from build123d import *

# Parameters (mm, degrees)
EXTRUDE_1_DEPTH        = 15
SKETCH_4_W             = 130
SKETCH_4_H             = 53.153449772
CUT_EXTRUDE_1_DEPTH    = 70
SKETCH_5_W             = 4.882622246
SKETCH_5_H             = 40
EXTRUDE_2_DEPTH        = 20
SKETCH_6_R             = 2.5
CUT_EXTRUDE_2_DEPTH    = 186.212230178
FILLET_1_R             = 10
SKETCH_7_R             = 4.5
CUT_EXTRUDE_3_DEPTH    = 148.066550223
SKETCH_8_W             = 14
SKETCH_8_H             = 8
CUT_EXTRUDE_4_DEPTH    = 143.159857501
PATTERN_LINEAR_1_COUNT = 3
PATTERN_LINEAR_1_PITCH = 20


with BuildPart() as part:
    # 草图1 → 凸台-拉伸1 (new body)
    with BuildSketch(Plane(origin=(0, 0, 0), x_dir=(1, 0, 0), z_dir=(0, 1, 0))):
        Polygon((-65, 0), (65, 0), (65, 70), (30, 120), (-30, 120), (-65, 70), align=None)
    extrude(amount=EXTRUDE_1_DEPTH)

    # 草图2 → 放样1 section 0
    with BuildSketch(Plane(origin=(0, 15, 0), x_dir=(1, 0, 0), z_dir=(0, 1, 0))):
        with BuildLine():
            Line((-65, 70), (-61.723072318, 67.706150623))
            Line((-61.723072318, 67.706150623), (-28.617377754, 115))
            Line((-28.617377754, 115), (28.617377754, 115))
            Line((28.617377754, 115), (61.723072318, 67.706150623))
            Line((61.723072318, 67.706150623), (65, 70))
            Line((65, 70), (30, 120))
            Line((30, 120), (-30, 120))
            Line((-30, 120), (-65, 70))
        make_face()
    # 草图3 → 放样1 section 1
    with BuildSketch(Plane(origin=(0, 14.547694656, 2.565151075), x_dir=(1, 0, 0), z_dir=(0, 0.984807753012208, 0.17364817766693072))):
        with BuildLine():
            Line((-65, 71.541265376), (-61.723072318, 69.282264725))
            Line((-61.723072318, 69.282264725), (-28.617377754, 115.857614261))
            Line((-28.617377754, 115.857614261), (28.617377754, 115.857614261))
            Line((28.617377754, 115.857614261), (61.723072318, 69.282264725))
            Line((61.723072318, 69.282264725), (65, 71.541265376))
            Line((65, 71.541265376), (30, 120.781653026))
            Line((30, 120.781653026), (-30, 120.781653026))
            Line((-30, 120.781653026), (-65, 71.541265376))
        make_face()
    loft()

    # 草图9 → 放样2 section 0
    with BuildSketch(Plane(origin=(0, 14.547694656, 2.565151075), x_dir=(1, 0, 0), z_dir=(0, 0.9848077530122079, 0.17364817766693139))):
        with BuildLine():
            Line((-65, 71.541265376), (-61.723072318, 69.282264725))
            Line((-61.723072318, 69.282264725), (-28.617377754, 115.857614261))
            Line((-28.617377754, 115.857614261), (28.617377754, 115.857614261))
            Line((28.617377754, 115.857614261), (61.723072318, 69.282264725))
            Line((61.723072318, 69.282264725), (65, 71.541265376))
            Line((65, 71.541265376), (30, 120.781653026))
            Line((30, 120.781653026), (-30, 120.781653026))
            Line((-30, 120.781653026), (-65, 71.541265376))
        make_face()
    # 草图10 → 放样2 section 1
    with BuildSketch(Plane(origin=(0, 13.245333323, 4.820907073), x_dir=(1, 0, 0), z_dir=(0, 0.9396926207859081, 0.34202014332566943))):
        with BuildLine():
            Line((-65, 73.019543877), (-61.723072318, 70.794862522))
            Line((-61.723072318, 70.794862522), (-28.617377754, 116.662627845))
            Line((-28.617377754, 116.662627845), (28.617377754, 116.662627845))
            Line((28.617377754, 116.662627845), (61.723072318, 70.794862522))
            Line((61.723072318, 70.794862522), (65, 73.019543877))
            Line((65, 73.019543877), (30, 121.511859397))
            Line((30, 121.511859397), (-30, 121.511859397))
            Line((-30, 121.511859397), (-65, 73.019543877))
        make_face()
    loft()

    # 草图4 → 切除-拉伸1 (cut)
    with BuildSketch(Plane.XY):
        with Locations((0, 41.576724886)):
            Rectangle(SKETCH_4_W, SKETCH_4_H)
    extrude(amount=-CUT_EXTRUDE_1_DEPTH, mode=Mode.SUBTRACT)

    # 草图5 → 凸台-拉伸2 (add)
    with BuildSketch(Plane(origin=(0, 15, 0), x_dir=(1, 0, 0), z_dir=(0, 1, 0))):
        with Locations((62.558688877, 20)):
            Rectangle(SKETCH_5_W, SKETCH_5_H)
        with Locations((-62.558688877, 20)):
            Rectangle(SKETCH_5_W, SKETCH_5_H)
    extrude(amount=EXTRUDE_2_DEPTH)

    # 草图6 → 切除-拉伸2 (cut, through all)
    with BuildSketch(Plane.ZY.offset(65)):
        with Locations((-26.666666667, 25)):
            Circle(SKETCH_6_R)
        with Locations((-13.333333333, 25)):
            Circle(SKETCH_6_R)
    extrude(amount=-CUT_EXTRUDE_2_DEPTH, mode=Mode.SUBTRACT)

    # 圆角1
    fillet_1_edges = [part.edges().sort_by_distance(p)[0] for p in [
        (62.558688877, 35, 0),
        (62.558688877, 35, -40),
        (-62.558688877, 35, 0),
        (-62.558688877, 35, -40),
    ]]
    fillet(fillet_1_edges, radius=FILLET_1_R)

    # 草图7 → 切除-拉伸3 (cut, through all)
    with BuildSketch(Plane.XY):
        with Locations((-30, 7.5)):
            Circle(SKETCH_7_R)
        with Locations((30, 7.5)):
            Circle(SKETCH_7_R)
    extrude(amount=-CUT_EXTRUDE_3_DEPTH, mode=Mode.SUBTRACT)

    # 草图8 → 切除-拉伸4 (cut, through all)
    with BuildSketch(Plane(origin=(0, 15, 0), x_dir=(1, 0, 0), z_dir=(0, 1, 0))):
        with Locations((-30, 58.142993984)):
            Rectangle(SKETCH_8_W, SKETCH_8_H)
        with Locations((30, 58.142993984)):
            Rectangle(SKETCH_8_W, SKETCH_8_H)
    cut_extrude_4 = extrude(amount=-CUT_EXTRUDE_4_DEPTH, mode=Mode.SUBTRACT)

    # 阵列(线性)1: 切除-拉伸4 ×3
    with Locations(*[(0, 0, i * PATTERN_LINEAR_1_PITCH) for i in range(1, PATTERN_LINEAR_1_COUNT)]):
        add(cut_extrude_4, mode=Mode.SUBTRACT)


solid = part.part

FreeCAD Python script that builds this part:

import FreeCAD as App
import Part
import Sketcher

V = App.Vector
Q = App.Units.Quantity


def edges_at(feature, points):
    """Names of the edges that pass closest to the given points."""
    edges = feature.Shape.Edges
    near = lambda p: min(range(len(edges)), key=lambda i: edges[i].distToShape(Part.Vertex(*p))[0])
    return sorted({f"Edge{near(p) + 1}" for p in points})

doc = App.newDocument("Part")
body = doc.addObject("PartDesign::Body", "Body")

# Sketch on XZ plane
sketch1 = doc.addObject("Sketcher::SketchObject", "Sketch")
body.addObject(sketch1)
sketch1.AttachmentSupport = (doc.XZ_Plane, [""])
sketch1.MapMode = "FlatFace"
sketch1.addGeometry([
    Part.LineSegment(V(-65, 0, 0), V(65, 0, 0)),  # 0
    Part.LineSegment(V(65, 0, 0), V(65, -70, 0)),  # 1
    Part.LineSegment(V(65, -70, 0), V(30, -120, 0)),  # 2
    Part.LineSegment(V(30, -120, 0), V(-30, -120, 0)),  # 3
    Part.LineSegment(V(-30, -120, 0), V(-65, -70, 0)),  # 4
    Part.LineSegment(V(-65, -70, 0), V(-65, 0, 0)),  # 5
], False)
sketch1.addConstraint([
    Sketcher.Constraint("Coincident", 0, 2, 1, 1),
    Sketcher.Constraint("Coincident", 1, 2, 2, 1),
    Sketcher.Constraint("Coincident", 2, 2, 3, 1),
    Sketcher.Constraint("Coincident", 3, 2, 4, 1),
    Sketcher.Constraint("Coincident", 4, 2, 5, 1),
    Sketcher.Constraint("Coincident", 5, 2, 0, 1),
    Sketcher.Constraint("Horizontal", 0),
    Sketcher.Constraint("Vertical", 1),
    Sketcher.Constraint("Horizontal", 3),
    Sketcher.Constraint("Vertical", 5),
    Sketcher.Constraint("Symmetric", 0, 2, 5, 2, -1, 1),
    Sketcher.Constraint("Horizontal", 1, 2, 4, 2),
    Sketcher.Constraint("Equal", 2, 4),
    Sketcher.Constraint("DistanceX", 0, 1, 0, 2, Q("130 mm")),
    Sketcher.Constraint("DistanceX", 3, 2, 3, 1, Q("60 mm")),
    Sketcher.Constraint("DistanceY", 1, 2, 1, 1, Q("70 mm")),
    Sketcher.Constraint("DistanceY", 2, 2, -1, 1, Q("120 mm")),
])
pad1 = doc.addObject("PartDesign::Pad", "Pad")
body.addObject(pad1)
pad1.Profile = sketch1
pad1.Length = 15
pad1.Reversed = True

# Sketch on XZ plane
sketch2 = doc.addObject("Sketcher::SketchObject", "Sketch001")
body.addObject(sketch2)
sketch2.AttachmentSupport = (doc.XZ_Plane, [""])
sketch2.MapMode = "FlatFace"
sketch2.AttachmentOffset = App.Placement(V(0, 0, -15), App.Rotation())
sketch2.addGeometry([
    Part.LineSegment(V(-65, -70, 0), V(-61.723072, -67.706151, 0)),  # 0
    Part.LineSegment(V(-61.723072, -67.706151, 0), V(-28.617378, -115, 0)),  # 1
    Part.LineSegment(V(-28.617378, -115, 0), V(28.617378, -115, 0)),  # 2
    Part.LineSegment(V(28.617378, -115, 0), V(61.723072, -67.706151, 0)),  # 3
    Part.LineSegment(V(61.723072, -67.706151, 0), V(65, -70, 0)),  # 4
    Part.LineSegment(V(65, -70, 0), V(30, -120, 0)),  # 5
    Part.LineSegment(V(30, -120, 0), V(-30, -120, 0)),  # 6
    Part.LineSegment(V(-30, -120, 0), V(-65, -70, 0)),  # 7
], False)
sketch2.addConstraint([
    Sketcher.Constraint("Coincident", 0, 2, 1, 1),
    Sketcher.Constraint("Coincident", 1, 2, 2, 1),
    Sketcher.Constraint("Coincident", 2, 2, 3, 1),
    Sketcher.Constraint("Coincident", 3, 2, 4, 1),
    Sketcher.Constraint("Coincident", 4, 2, 5, 1),
    Sketcher.Constraint("Coincident", 5, 2, 6, 1),
    Sketcher.Constraint("Coincident", 6, 2, 7, 1),
    Sketcher.Constraint("Coincident", 7, 2, 0, 1),
    Sketcher.Constraint("Horizontal", 2),
    Sketcher.Constraint("Horizontal", 6),
    Sketcher.Constraint("Symmetric", 0, 2, 3, 2, -2),
    Sketcher.Constraint("Symmetric", 4, 2, 7, 2, -2),
    Sketcher.Constraint("Perpendicular", 0, 1),
    Sketcher.Constraint("Perpendicular", 3, 4),
    Sketcher.Constraint("Perpendicular", 4, 5),
    Sketcher.Constraint("Parallel", 1, 7),
    Sketcher.Constraint("DistanceX", 6, 2, 6, 1, Q("60 mm")),
    Sketcher.Constraint("Distance", 0, Q("4 mm")),
    Sketcher.Constraint("DistanceY", 1, 2, -1, 1, Q("115 mm")),
    Sketcher.Constraint("DistanceX", -1, 1, 4, 2, Q("65 mm")),
    Sketcher.Constraint("DistanceY", 4, 2, -1, 1, Q("70 mm")),
    Sketcher.Constraint("DistanceY", 5, 2, -1, 1, Q("120 mm")),
])

# Sketch on an angled plane
sketch3 = doc.addObject("Sketcher::SketchObject", "Sketch002")
body.addObject(sketch3)
sketch3.Placement = App.Placement(V(0, 14.547695, 2.565151), App.Rotation(V(1, 0, 0), V(0, 0.173648178, -0.984807753), V(0, 0.984807753, 0.173648178), "ZXY"))
sketch3.addGeometry([
    Part.LineSegment(V(-65, 71.541265, 0), V(-61.723072, 69.282265, 0)),  # 0
    Part.LineSegment(V(-61.723072, 69.282265, 0), V(-28.617378, 115.857614, 0)),  # 1
    Part.LineSegment(V(-28.617378, 115.857614, 0), V(28.617378, 115.857614, 0)),  # 2
    Part.LineSegment(V(28.617378, 115.857614, 0), V(61.723072, 69.282265, 0)),  # 3
    Part.LineSegment(V(61.723072, 69.282265, 0), V(65, 71.541265, 0)),  # 4
    Part.LineSegment(V(65, 71.541265, 0), V(30, 120.781653, 0)),  # 5
    Part.LineSegment(V(30, 120.781653, 0), V(-30, 120.781653, 0)),  # 6
    Part.LineSegment(V(-30, 120.781653, 0), V(-65, 71.541265, 0)),  # 7
], False)
sketch3.addConstraint([
    Sketcher.Constraint("Coincident", 0, 2, 1, 1),
    Sketcher.Constraint("Coincident", 1, 2, 2, 1),
    Sketcher.Constraint("Coincident", 2, 2, 3, 1),
    Sketcher.Constraint("Coincident", 3, 2, 4, 1),
    Sketcher.Constraint("Coincident", 4, 2, 5, 1),
    Sketcher.Constraint("Coincident", 5, 2, 6, 1),
    Sketcher.Constraint("Coincident", 6, 2, 7, 1),
    Sketcher.Constraint("Coincident", 7, 2, 0, 1),
    Sketcher.Constraint("Horizontal", 2),
    Sketcher.Constraint("Horizontal", 6),
    Sketcher.Constraint("Symmetric", 0, 2, 3, 2, -2),
    Sketcher.Constraint("Symmetric", 4, 2, 7, 2, -2),
    Sketcher.Constraint("Parallel", 3, 5),
    Sketcher.Constraint("Parallel", 1, 7),
    Sketcher.Constraint("Equal", 1, 3),
    Sketcher.Constraint("DistanceX", 6, 2, 6, 1, Q("60 mm")),
    Sketcher.Constraint("DistanceX", -1, 1, 4, 2, Q("65 mm")),
    Sketcher.Constraint("DistanceY", 3, 2, 4, 2, Q("2.259001 mm")),
    Sketcher.Constraint("Distance", 5, Q("60.41205 mm")),
    Sketcher.Constraint("DistanceX", 2, 1, 2, 2, Q("57.234756 mm")),
    Sketcher.Constraint("DistanceY", 0, 2, 1, 2, Q("46.57535 mm")),
    Sketcher.Constraint("DistanceY", -1, 1, 0, 2, Q("69.282265 mm")),
])

additiveloft = doc.addObject("PartDesign::AdditiveLoft", "AdditiveLoft")
body.addObject(additiveloft)
additiveloft.Profile = sketch2
additiveloft.Sections = [sketch3]

# Sketch on an angled plane
sketch4 = doc.addObject("Sketcher::SketchObject", "Sketch003")
body.addObject(sketch4)
sketch4.Placement = App.Placement(V(0, 14.547695, 2.565151), App.Rotation(V(1, 0, 0), V(0, 0.173648178, -0.984807753), V(0, 0.984807753, 0.173648178), "ZXY"))
sketch4.addGeometry([
    Part.LineSegment(V(-65, 71.541265, 0), V(-61.723072, 69.282265, 0)),  # 0
    Part.LineSegment(V(-61.723072, 69.282265, 0), V(-28.617378, 115.857614, 0)),  # 1
    Part.LineSegment(V(-28.617378, 115.857614, 0), V(28.617378, 115.857614, 0)),  # 2
    Part.LineSegment(V(28.617378, 115.857614, 0), V(61.723072, 69.282265, 0)),  # 3
    Part.LineSegment(V(61.723072, 69.282265, 0), V(65, 71.541265, 0)),  # 4
    Part.LineSegment(V(65, 71.541265, 0), V(30, 120.781653, 0)),  # 5
    Part.LineSegment(V(30, 120.781653, 0), V(-30, 120.781653, 0)),  # 6
    Part.LineSegment(V(-30, 120.781653, 0), V(-65, 71.541265, 0)),  # 7
], False)
sketch4.addConstraint([
    Sketcher.Constraint("Coincident", 0, 2, 1, 1),
    Sketcher.Constraint("Coincident", 1, 2, 2, 1),
    Sketcher.Constraint("Coincident", 2, 2, 3, 1),
    Sketcher.Constraint("Coincident", 3, 2, 4, 1),
    Sketcher.Constraint("Coincident", 4, 2, 5, 1),
    Sketcher.Constraint("Coincident", 5, 2, 6, 1),
    Sketcher.Constraint("Coincident", 6, 2, 7, 1),
    Sketcher.Constraint("Coincident", 7, 2, 0, 1),
    Sketcher.Constraint("Horizontal", 2),
    Sketcher.Constraint("Horizontal", 6),
    Sketcher.Constraint("Symmetric", 0, 2, 3, 2, -2),
    Sketcher.Constraint("Symmetric", 4, 2, 7, 2, -2),
    Sketcher.Constraint("Parallel", 3, 5),
    Sketcher.Constraint("Parallel", 1, 7),
    Sketcher.Constraint("Equal", 1, 3),
    Sketcher.Constraint("DistanceX", 6, 2, 6, 1, Q("60 mm")),
    Sketcher.Constraint("DistanceX", -1, 1, 4, 2, Q("65 mm")),
    Sketcher.Constraint("DistanceY", 3, 2, 4, 2, Q("2.259001 mm")),
    Sketcher.Constraint("Distance", 5, Q("60.41205 mm")),
    Sketcher.Constraint("DistanceX", 2, 1, 2, 2, Q("57.234756 mm")),
    Sketcher.Constraint("DistanceY", 0, 2, 1, 2, Q("46.57535 mm")),
    Sketcher.Constraint("DistanceY", -1, 1, 0, 2, Q("69.282265 mm")),
])

# Sketch on an angled plane
sketch5 = doc.addObject("Sketcher::SketchObject", "Sketch004")
body.addObject(sketch5)
sketch5.Placement = App.Placement(V(0, 13.245333, 4.820907), App.Rotation(V(1, 0, 0), V(0, 0.342020143, -0.939692621), V(0, 0.939692621, 0.342020143), "ZXY"))
sketch5.addGeometry([
    Part.LineSegment(V(-65, 73.019544, 0), V(-61.723072, 70.794863, 0)),  # 0
    Part.LineSegment(V(-61.723072, 70.794863, 0), V(-28.617378, 116.662628, 0)),  # 1
    Part.LineSegment(V(-28.617378, 116.662628, 0), V(28.617378, 116.662628, 0)),  # 2
    Part.LineSegment(V(28.617378, 116.662628, 0), V(61.723072, 70.794863, 0)),  # 3
    Part.LineSegment(V(61.723072, 70.794863, 0), V(65, 73.019544, 0)),  # 4
    Part.LineSegment(V(65, 73.019544, 0), V(30, 121.511859, 0)),  # 5
    Part.LineSegment(V(30, 121.511859, 0), V(-30, 121.511859, 0)),  # 6
    Part.LineSegment(V(-30, 121.511859, 0), V(-65, 73.019544, 0)),  # 7
], False)
sketch5.addConstraint([
    Sketcher.Constraint("Coincident", 0, 2, 1, 1),
    Sketcher.Constraint("Coincident", 1, 2, 2, 1),
    Sketcher.Constraint("Coincident", 2, 2, 3, 1),
    Sketcher.Constraint("Coincident", 3, 2, 4, 1),
    Sketcher.Constraint("Coincident", 4, 2, 5, 1),
    Sketcher.Constraint("Coincident", 5, 2, 6, 1),
    Sketcher.Constraint("Coincident", 6, 2, 7, 1),
    Sketcher.Constraint("Coincident", 7, 2, 0, 1),
    Sketcher.Constraint("Horizontal", 2),
    Sketcher.Constraint("Horizontal", 6),
    Sketcher.Constraint("Symmetric", 0, 2, 3, 2, -2),
    Sketcher.Constraint("Symmetric", 4, 2, 7, 2, -2),
    Sketcher.Constraint("Parallel", 3, 5),
    Sketcher.Constraint("Parallel", 1, 7),
    Sketcher.Constraint("Equal", 1, 3),
    Sketcher.Constraint("DistanceX", 6, 2, 6, 1, Q("60 mm")),
    Sketcher.Constraint("DistanceX", -1, 1, 4, 2, Q("65 mm")),
    Sketcher.Constraint("Distance", 0, Q("3.96074 mm")),
    Sketcher.Constraint("Distance", 1, Q("56.567119 mm")),
    Sketcher.Constraint("DistanceX", 2, 1, 2, 2, Q("57.234756 mm")),
    Sketcher.Constraint("DistanceY", -1, 1, 5, 2, Q("121.511859 mm")),
    Sketcher.Constraint("DistanceX", 0, 2, 2, 2, Q("90.34045 mm")),
])

additiveloft2 = doc.addObject("PartDesign::AdditiveLoft", "AdditiveLoft001")
body.addObject(additiveloft2)
additiveloft2.Profile = sketch4
additiveloft2.Sections = [sketch5]

# Sketch on XY plane
sketch6 = doc.addObject("Sketcher::SketchObject", "Sketch005")
body.addObject(sketch6)
sketch6.AttachmentSupport = (doc.XY_Plane, [""])
sketch6.MapMode = "FlatFace"
sketch6.addGeometry([
    Part.LineSegment(V(-65, 68.15345, 0), V(-65, 15, 0)),
    Part.LineSegment(V(-65, 15, 0), V(65, 15, 0)),
    Part.LineSegment(V(65, 15, 0), V(65, 68.15345, 0)),
    Part.LineSegment(V(65, 68.15345, 0), V(-65, 68.15345, 0)),
], False)
sketch6.addConstraint([
    Sketcher.Constraint("Coincident", 0, 2, 1, 1),
    Sketcher.Constraint("Coincident", 1, 2, 2, 1),
    Sketcher.Constraint("Coincident", 2, 2, 3, 1),
    Sketcher.Constraint("Coincident", 3, 2, 0, 1),
    Sketcher.Constraint("Vertical", 0),
    Sketcher.Constraint("Horizontal", 1),
    Sketcher.Constraint("Vertical", 2),
    Sketcher.Constraint("Horizontal", 3),
    Sketcher.Constraint("DistanceX", 1, 1, 1, 2, Q("130 mm")),
    Sketcher.Constraint("DistanceX", 0, 2, -1, 1, Q("65 mm")),
    Sketcher.Constraint("DistanceY", -1, 1, 0, 2, Q("15 mm")),
    Sketcher.Constraint("DistanceY", 0, 2, 0, 1, Q("53.15345 mm")),
])
pocket1 = doc.addObject("PartDesign::Pocket", "Pocket")
body.addObject(pocket1)
pocket1.Profile = sketch6
pocket1.Length = 70

# Sketch on XZ plane
sketch7 = doc.addObject("Sketcher::SketchObject", "Sketch006")
body.addObject(sketch7)
sketch7.AttachmentSupport = (doc.XZ_Plane, [""])
sketch7.MapMode = "FlatFace"
sketch7.AttachmentOffset = App.Placement(V(0, 0, -15), App.Rotation())
sketch7.addGeometry([
    Part.LineSegment(V(60.117378, -40, 0), V(60.117378, 0, 0)),  # 0
    Part.LineSegment(V(60.117378, 0, 0), V(65, 0, 0)),  # 1
    Part.LineSegment(V(65, 0, 0), V(65, -40, 0)),  # 2
    Part.LineSegment(V(65, -40, 0), V(60.117378, -40, 0)),  # 3
    Part.LineSegment(V(-65, -40, 0), V(-65, 0, 0)),  # 4
    Part.LineSegment(V(-65, 0, 0), V(-60.117378, 0, 0)),  # 5
    Part.LineSegment(V(-60.117378, 0, 0), V(-60.117378, -40, 0)),  # 6
    Part.LineSegment(V(-60.117378, -40, 0), V(-65, -40, 0)),  # 7
], False)
sketch7.addConstraint([
    Sketcher.Constraint("Coincident", 0, 2, 1, 1),
    Sketcher.Constraint("Coincident", 1, 2, 2, 1),
    Sketcher.Constraint("Coincident", 2, 2, 3, 1),
    Sketcher.Constraint("Coincident", 3, 2, 0, 1),
    Sketcher.Constraint("Coincident", 4, 2, 5, 1),
    Sketcher.Constraint("Coincident", 5, 2, 6, 1),
    Sketcher.Constraint("Coincident", 6, 2, 7, 1),
    Sketcher.Constraint("Coincident", 7, 2, 4, 1),
    Sketcher.Constraint("Vertical", 0),
    Sketcher.Constraint("Horizontal", 1),
    Sketcher.Constraint("Vertical", 2),
    Sketcher.Constraint("Horizontal", 3),
    Sketcher.Constraint("Vertical", 4),
    Sketcher.Constraint("Horizontal", 5),
    Sketcher.Constraint("Vertical", 6),
    Sketcher.Constraint("Horizontal", 7),
    Sketcher.Constraint("Symmetric", 1, 2, 4, 2, -1, 1),
    Sketcher.Constraint("Symmetric", 0, 2, 5, 2, -2),
    Sketcher.Constraint("Horizontal", 3, 2, 6, 2),
    Sketcher.Constraint("DistanceY", 0, 1, 0, 2, Q("40 mm")),
    Sketcher.Constraint("DistanceX", -1, 1, 1, 2, Q("65 mm")),
    Sketcher.Constraint("DistanceX", 1, 1, 1, 2, Q("4.882622 mm")),
])
pad2 = doc.addObject("PartDesign::Pad", "Pad001")
body.addObject(pad2)
pad2.Profile = sketch7
pad2.Length = 20
pad2.Reversed = True

# Sketch on YZ plane
sketch8 = doc.addObject("Sketcher::SketchObject", "Sketch007")
body.addObject(sketch8)
sketch8.AttachmentSupport = (doc.YZ_Plane, [""])
sketch8.MapMode = "FlatFace"
sketch8.AttachmentOffset = App.Placement(V(0, 0, -65), App.Rotation())
sketch8.addGeometry([
    Part.Circle(V(25, -26.666667, 0), V(0, 0, 1), 2.5),
    Part.Circle(V(25, -13.333333, 0), V(0, 0, 1), 2.5),
], False)
sketch8.addConstraint([
    Sketcher.Constraint("Equal", 0, 1),
    Sketcher.Constraint("Vertical", 0, 3, 1, 3),
    Sketcher.Constraint("Diameter", 0, Q("5 mm")),
    Sketcher.Constraint("DistanceX", -1, 1, 0, 3, Q("25 mm")),
    Sketcher.Constraint("DistanceY", 0, 3, -1, 1, Q("26.666667 mm")),
    Sketcher.Constraint("DistanceY", 1, 3, -1, 1, Q("13.333333 mm")),
])
pocket2 = doc.addObject("PartDesign::Pocket", "Pocket001")
body.addObject(pocket2)
pocket2.Profile = sketch8
pocket2.Type = "ThroughAll"
pocket2.Reversed = True
doc.recompute()

fillet = doc.addObject("PartDesign::Fillet", "Fillet")
body.addObject(fillet)
fillet.Base = (pocket2, edges_at(pocket2, [
    (62.559, 35, 0),
    (62.559, 35, -40),
    (-62.559, 35, 0),
    (-62.559, 35, -40),
]))
fillet.Radius = 10

# Sketch on XY plane
sketch9 = doc.addObject("Sketcher::SketchObject", "Sketch008")
body.addObject(sketch9)
sketch9.AttachmentSupport = (doc.XY_Plane, [""])
sketch9.MapMode = "FlatFace"
sketch9.addGeometry([
    Part.Circle(V(-30, 7.5, 0), V(0, 0, 1), 4.5),
    Part.Circle(V(30, 7.5, 0), V(0, 0, 1), 4.5),
], False)
sketch9.addConstraint([
    Sketcher.Constraint("Equal", 0, 1),
    Sketcher.Constraint("Symmetric", 0, 3, 1, 3, -2),
    Sketcher.Constraint("Diameter", 0, Q("9 mm")),
    Sketcher.Constraint("DistanceX", 0, 3, -1, 1, Q("30 mm")),
    Sketcher.Constraint("DistanceY", -1, 1, 0, 3, Q("7.5 mm")),
])
pocket3 = doc.addObject("PartDesign::Pocket", "Pocket002")
body.addObject(pocket3)
pocket3.Profile = sketch9
pocket3.Type = "ThroughAll"

# Sketch on XZ plane
sketch10 = doc.addObject("Sketcher::SketchObject", "Sketch009")
body.addObject(sketch10)
sketch10.AttachmentSupport = (doc.XZ_Plane, [""])
sketch10.MapMode = "FlatFace"
sketch10.AttachmentOffset = App.Placement(V(0, 0, -15), App.Rotation())
sketch10.addGeometry([
    Part.LineSegment(V(-37, -62.142994, 0), V(-37, -54.142994, 0)),  # 0
    Part.LineSegment(V(-37, -54.142994, 0), V(-23, -54.142994, 0)),  # 1
    Part.LineSegment(V(-23, -54.142994, 0), V(-23, -62.142994, 0)),  # 2
    Part.LineSegment(V(-23, -62.142994, 0), V(-37, -62.142994, 0)),  # 3
    Part.LineSegment(V(23, -62.142994, 0), V(23, -54.142994, 0)),  # 4
    Part.LineSegment(V(23, -54.142994, 0), V(37, -54.142994, 0)),  # 5
    Part.LineSegment(V(37, -54.142994, 0), V(37, -62.142994, 0)),  # 6
    Part.LineSegment(V(37, -62.142994, 0), V(23, -62.142994, 0)),  # 7
], False)
sketch10.addConstraint([
    Sketcher.Constraint("Coincident", 0, 2, 1, 1),
    Sketcher.Constraint("Coincident", 1, 2, 2, 1),
    Sketcher.Constraint("Coincident", 2, 2, 3, 1),
    Sketcher.Constraint("Coincident", 3, 2, 0, 1),
    Sketcher.Constraint("Coincident", 4, 2, 5, 1),
    Sketcher.Constraint("Coincident", 5, 2, 6, 1),
    Sketcher.Constraint("Coincident", 6, 2, 7, 1),
    Sketcher.Constraint("Coincident", 7, 2, 4, 1),
    Sketcher.Constraint("Vertical", 0),
    Sketcher.Constraint("Horizontal", 1),
    Sketcher.Constraint("Vertical", 2),
    Sketcher.Constraint("Horizontal", 3),
    Sketcher.Constraint("Vertical", 4),
    Sketcher.Constraint("Horizontal", 5),
    Sketcher.Constraint("Vertical", 6),
    Sketcher.Constraint("Horizontal", 7),
    Sketcher.Constraint("Symmetric", 1, 2, 4, 2, -2),
    Sketcher.Constraint("Symmetric", 3, 2, 6, 2, -2),
    Sketcher.Constraint("DistanceX", 1, 1, 1, 2, Q("14 mm")),
    Sketcher.Constraint("DistanceY", 0, 1, 0, 2, Q("8 mm")),
    Sketcher.Constraint("DistanceX", 0, 2, -1, 1, Q("37 mm")),
    Sketcher.Constraint("DistanceY", 0, 2, -1, 1, Q("54.142994 mm")),
])
pocket4 = doc.addObject("PartDesign::Pocket", "Pocket003")
body.addObject(pocket4)
pocket4.Profile = sketch10
pocket4.Type = "ThroughAll"
pocket4.Reversed = True
doc.recompute()

linearpattern = doc.addObject("PartDesign::LinearPattern", "LinearPattern")
body.addObject(linearpattern)
linearpattern.Originals = [pocket4]
linearpattern.Direction = (doc.Z_Axis, [""])
linearpattern.Mode = "offset"
linearpattern.Offset = 20
linearpattern.Occurrences = 3
body.Tip = linearpattern

doc.recompute()
